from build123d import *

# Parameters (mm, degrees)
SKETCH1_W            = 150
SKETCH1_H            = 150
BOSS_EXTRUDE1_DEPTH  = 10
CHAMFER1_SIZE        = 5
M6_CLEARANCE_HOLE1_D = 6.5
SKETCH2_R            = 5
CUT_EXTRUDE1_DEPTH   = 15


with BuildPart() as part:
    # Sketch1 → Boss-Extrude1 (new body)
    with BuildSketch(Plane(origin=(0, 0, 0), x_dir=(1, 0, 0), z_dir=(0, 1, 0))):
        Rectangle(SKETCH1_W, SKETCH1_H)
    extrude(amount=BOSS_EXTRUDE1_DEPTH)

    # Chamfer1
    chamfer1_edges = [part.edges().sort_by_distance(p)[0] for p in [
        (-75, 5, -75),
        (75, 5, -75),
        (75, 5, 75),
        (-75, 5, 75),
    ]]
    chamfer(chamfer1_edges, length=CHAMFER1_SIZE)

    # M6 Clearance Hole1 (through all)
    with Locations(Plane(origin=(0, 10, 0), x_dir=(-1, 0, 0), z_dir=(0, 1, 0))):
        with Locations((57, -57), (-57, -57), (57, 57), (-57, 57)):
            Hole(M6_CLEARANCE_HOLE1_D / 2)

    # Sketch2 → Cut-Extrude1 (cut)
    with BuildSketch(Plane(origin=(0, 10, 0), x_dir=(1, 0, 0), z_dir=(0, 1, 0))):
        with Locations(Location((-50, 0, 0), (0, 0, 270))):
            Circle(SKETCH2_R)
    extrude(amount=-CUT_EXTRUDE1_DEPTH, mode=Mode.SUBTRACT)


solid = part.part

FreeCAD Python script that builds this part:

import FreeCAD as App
import Part
import Sketcher

V = App.Vector
Q = App.Units.Quantity


def edges_at(feature, points):
    """Names of the edges that pass closest to the given points."""
    edges = feature.Shape.Edges
    near = lambda p: min(range(len(edges)), key=lambda i: edges[i].distToShape(Part.Vertex(*p))[0])
    return sorted({f"Edge{near(p) + 1}" for p in points})


def add_polygon(sketch, points):
    """Adds a closed chain of lines whose ends are joined by coincident constraints."""
    first, n = sketch.GeometryCount, len(points)
    for a, b in zip(points, points[1:] + points[:1]):
        sketch.addGeometry(Part.LineSegment(App.Vector(*a, 0), App.Vector(*b, 0)), False)
    for i in range(n):
        sketch.addConstraint(Sketcher.Constraint("Coincident", first + i, 2, first + (i + 1) % n, 1))

doc = App.newDocument("Part")
body = doc.addObject("PartDesign::Body", "Body")

sketch1 = body.newObject("Sketcher::SketchObject", "Sketch")
sketch1.AttachmentSupport = (doc.getObject("XZ_Plane"), [""])
sketch1.MapMode = "FlatFace"
add_polygon(sketch1, [(-75, -75), (-75, 75), (75, 75), (75, -75)])
sketch1.addConstraint([
    Sketcher.Constraint("Vertical", 0),
    Sketcher.Constraint("Horizontal", 1),
    Sketcher.Constraint("Vertical", 2),
    Sketcher.Constraint("Horizontal", 3),
    Sketcher.Constraint("Symmetric", 0, 2, 2, 2, -1, 1),
    Sketcher.Constraint("Equal", 3, 0),
    Sketcher.Constraint("DistanceX", 1, 1, 1, 2, Q("150 mm")),
])
pad1 = body.newObject("PartDesign::Pad", "Pad")
pad1.Profile = sketch1
pad1.Length = 10
pad1.Reversed = True
doc.recompute()

chamfer = body.newObject("PartDesign::Chamfer", "Chamfer")
chamfer.Base = (pad1, edges_at(pad1, [
    (-75, 5, -75),
    (75, 5, -75),
    (75, 5, 75),
    (-75, 5, 75),
]))
chamfer.Size = 5

sketch2 = body.newObject("Sketcher::SketchObject", "Sketch001")
sketch2.AttachmentSupport = (doc.getObject("XZ_Plane"), [""])
sketch2.MapMode = "FlatFace"
sketch2.AttachmentOffset = App.Placement(V(0, 0, -10), App.Rotation())
sketch2.addGeometry([
    Part.Circle(V(-57, -57, 0), V(0, 0, 1), 3.2),
    Part.Circle(V(57, -57, 0), V(0, 0, 1), 3.2),
    Part.Circle(V(-57, 57, 0), V(0, 0, 1), 3.2),
    Part.Circle(V(57, 57, 0), V(0, 0, 1), 3.2),
], False)
sketch2.addConstraint([
    Sketcher.Constraint("Equal", 0, 1),
    Sketcher.Constraint("Equal", 1, 2),
    Sketcher.Constraint("Equal", 2, 3),
    Sketcher.Constraint("Symmetric", 1, 3, 2, 3, -1, 1),
    Sketcher.Constraint("Symmetric", 0, 3, 3, 3, -1, 1),
    Sketcher.Constraint("Symmetric", 0, 3, 1, 3, -2),
    Sketcher.Constraint("Diameter", 0, Q("6.5 mm")),
    Sketcher.Constraint("DistanceX", 0, 3, -1, 1, Q("57 mm")),
    Sketcher.Constraint("DistanceY", 0, 3, -1, 1, Q("57 mm")),
])
doc.recompute()
hole = body.newObject("PartDesign::Hole", "Hole")
hole.Profile = sketch2
hole.ThreadType = "None"
hole.Diameter = 6.5
hole.DepthType = "ThroughAll"
hole.Reversed = True

sketch3 = body.newObject("Sketcher::SketchObject", "Sketch002")
sketch3.AttachmentSupport = (doc.getObject("XZ_Plane"), [""])
sketch3.MapMode = "FlatFace"
sketch3.AttachmentOffset = App.Placement(V(0, 0, -10), App.Rotation())
sketch3.addGeometry(Part.Circle(V(-50, 0, 0), V(0, 0, 1), 5), False)
sketch3.addConstraint([
    Sketcher.Constraint("PointOnObject", 0, 3, -1),
    Sketcher.Constraint("Diameter", 0, Q("10 mm")),
    Sketcher.Constraint("DistanceX", 0, 3, -1, 1, Q("50 mm")),
])
pocket1 = body.newObject("PartDesign::Pocket", "Pocket")
pocket1.Profile = sketch3
pocket1.Length = 15
pocket1.Reversed = True

doc.recompute()
